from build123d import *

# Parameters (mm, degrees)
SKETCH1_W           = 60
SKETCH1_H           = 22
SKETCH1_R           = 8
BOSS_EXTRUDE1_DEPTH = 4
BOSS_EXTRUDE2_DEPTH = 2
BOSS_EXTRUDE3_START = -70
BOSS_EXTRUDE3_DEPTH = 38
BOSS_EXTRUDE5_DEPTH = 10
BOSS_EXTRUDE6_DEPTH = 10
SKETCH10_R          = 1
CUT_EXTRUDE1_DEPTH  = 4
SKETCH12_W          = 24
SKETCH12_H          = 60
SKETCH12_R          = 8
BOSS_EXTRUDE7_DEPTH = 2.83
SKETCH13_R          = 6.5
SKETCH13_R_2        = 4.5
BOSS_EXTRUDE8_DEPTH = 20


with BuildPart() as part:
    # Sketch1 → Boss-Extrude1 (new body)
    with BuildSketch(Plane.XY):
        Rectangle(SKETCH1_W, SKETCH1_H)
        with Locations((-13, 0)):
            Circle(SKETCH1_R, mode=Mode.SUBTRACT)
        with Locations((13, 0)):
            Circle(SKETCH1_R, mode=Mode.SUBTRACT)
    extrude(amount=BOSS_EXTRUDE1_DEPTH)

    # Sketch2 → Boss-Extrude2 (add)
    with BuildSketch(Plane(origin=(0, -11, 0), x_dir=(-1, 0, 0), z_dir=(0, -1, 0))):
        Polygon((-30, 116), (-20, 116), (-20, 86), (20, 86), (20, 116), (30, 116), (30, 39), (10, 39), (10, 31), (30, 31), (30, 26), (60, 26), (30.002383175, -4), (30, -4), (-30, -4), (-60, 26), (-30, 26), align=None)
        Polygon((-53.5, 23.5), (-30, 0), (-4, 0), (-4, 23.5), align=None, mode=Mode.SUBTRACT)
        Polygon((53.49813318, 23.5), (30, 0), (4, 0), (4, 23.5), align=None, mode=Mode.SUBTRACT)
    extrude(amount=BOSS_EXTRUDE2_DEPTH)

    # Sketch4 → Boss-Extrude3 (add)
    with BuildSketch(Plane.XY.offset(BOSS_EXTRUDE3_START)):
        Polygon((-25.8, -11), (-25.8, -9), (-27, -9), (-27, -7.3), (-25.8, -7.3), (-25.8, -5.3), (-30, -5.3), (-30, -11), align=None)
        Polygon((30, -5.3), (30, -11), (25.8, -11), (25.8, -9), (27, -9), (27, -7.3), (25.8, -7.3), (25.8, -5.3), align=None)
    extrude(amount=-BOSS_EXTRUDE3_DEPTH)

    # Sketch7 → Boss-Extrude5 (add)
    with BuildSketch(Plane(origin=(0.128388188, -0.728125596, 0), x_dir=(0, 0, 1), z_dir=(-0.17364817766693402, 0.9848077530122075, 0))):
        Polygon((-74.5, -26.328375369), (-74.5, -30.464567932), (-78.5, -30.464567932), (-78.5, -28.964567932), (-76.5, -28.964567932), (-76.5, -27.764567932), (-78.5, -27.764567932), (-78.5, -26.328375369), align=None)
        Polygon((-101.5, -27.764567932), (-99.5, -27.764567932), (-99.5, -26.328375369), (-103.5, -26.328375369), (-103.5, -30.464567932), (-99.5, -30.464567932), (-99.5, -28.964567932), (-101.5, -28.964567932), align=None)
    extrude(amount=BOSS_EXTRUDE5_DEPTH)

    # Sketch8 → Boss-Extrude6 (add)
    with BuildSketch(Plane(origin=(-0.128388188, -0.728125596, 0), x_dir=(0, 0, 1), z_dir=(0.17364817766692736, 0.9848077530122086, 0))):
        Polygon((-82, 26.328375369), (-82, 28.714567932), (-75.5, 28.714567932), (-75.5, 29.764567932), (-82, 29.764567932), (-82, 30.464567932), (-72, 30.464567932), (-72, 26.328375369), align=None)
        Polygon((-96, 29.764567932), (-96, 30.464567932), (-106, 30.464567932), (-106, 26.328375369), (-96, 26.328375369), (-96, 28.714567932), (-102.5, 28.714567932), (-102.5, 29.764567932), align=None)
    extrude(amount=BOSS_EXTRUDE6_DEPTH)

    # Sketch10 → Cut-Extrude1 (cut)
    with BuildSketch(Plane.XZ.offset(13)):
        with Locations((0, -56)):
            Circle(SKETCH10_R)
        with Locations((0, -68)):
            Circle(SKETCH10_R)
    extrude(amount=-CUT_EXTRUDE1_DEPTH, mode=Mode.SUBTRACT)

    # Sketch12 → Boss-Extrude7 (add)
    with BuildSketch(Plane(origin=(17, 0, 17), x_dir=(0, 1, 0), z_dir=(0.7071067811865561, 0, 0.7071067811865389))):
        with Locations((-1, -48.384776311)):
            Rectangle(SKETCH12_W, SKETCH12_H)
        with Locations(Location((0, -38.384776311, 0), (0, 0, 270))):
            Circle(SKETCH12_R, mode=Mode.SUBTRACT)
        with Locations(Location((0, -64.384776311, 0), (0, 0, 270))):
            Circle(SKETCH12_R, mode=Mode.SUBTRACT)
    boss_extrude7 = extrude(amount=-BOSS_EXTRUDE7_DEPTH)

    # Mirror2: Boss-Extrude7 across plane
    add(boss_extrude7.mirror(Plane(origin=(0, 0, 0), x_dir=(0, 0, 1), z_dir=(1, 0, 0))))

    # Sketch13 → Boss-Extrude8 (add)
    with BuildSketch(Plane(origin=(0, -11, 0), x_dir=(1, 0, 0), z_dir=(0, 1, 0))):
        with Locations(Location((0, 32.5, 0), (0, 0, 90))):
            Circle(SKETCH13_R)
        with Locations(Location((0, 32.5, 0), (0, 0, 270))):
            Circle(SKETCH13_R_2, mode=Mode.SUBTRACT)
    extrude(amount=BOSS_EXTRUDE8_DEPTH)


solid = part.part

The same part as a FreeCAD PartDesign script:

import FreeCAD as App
import Part
import Sketcher

V = App.Vector
Q = App.Units.Quantity

doc = App.newDocument("Part")
params = doc.addObject("Spreadsheet::Sheet", "Params")
for row, (alias, value) in enumerate([
    ("sketch1_diameter", "16 mm"),
    ("sketch1_width", "60 mm"),
    ("sketch1_height", "22 mm"),
    ("pad1_length", "4 mm"),
    ("sketch2_width", "10 mm"),
    ("sketch2_width2", "30 mm"),
    ("sketch2_width3", "20 mm"),
    ("sketch2_width4", "40 mm"),
    ("sketch2_width5", "26 mm"),
    ("pad2_length", "2 mm"),
    ("sketch3_height", "2 mm"),
    ("sketch3_width", "1.2 mm"),
    ("sketch3_width2", "4.2 mm"),
    ("sketch3_height2", "1.7 mm"),
    ("pad3_length", "38 mm"),
    ("sketch4_width", "4 mm"),
    ("sketch4_width2", "2 mm"),
    ("sketch4_height", "1.2 mm"),
    ("sketch4_height2", "1.5 mm"),
    ("pad4_length", "10 mm"),
    ("sketch5_width", "10 mm"),
    ("sketch5_width2", "6.5 mm"),
    ("sketch5_height", "0.7 mm"),
    ("sketch5_height2", "1.05 mm"),
    ("pad5_length", "10 mm"),
    ("sketch6_diameter", "2 mm"),
    ("pocket1_length", "4 mm"),
    ("sketch7_diameter", "16 mm"),
    ("sketch7_width", "24 mm"),
    ("sketch7_height", "60 mm"),
    ("pad6_length", "2.83 mm"),
    ("sketch8_diameter", "13 mm"),
    ("sketch8_diameter2", "9 mm"),
    ("pad7_length", "20 mm"),
], start=1):
    params.set(f"A{row}", alias)
    params.set(f"B{row}", "=" + value)
    params.setAlias(f"B{row}", alias)

body = doc.addObject("PartDesign::Body", "Body")

sketch1 = body.newObject("Sketcher::SketchObject", "Sketch")
sketch1.AttachmentSupport = (doc.getObject("XY_Plane"), [""])
sketch1.MapMode = "FlatFace"
sketch1.addGeometry([
    Part.LineSegment(V(-30, 11, 0), V(-30, -11, 0)),
    Part.LineSegment(V(-30, -11, 0), V(30, -11, 0)),
    Part.LineSegment(V(30, -11, 0), V(30, 11, 0)),
    Part.LineSegment(V(30, 11, 0), V(-30, 11, 0)),
    Part.Circle(V(-13, 0, 0), V(0, 0, 1), 8),
    Part.Circle(V(13, 0, 0), V(0, 0, 1), 8),
], False)
sketch1.addConstraint([
    Sketcher.Constraint("Coincident", 0, 2, 1, 1),
    Sketcher.Constraint("Coincident", 1, 2, 2, 1),
    Sketcher.Constraint("Coincident", 2, 2, 3, 1),
    Sketcher.Constraint("Coincident", 3, 2, 0, 1),
    Sketcher.Constraint("Vertical", 0),
    Sketcher.Constraint("Horizontal", 1),
    Sketcher.Constraint("Vertical", 2),
    Sketcher.Constraint("Horizontal", 3),
    Sketcher.Constraint("Equal", 4, 5),
    Sketcher.Constraint("Symmetric", 4, 3, 5, 3, -1, 1),
    Sketcher.Constraint("Symmetric", 0, 2, 2, 2, -1, 1),
    Sketcher.Constraint("PointOnObject", 4, 3, -1),
    Sketcher.Constraint("Diameter", 4, 16.0),
    Sketcher.Constraint("DistanceX", 1, 1, 1, 2, 60.0),
    Sketcher.Constraint("DistanceY", 0, 2, 0, 1, 22.0),
    Sketcher.Constraint("DistanceX", 4, 3, -1, 1, 13.0),
])
sketch1.setExpression("Constraints[12]", "Params.sketch1_diameter")
sketch1.setExpression("Constraints[13]", "Params.sketch1_width")
sketch1.setExpression("Constraints[14]", "Params.sketch1_height")
pad1 = body.newObject("PartDesign::Pad", "Pad")
pad1.Profile = sketch1
pad1.setExpression("Length", "Params.pad1_length")

sketch2 = body.newObject("Sketcher::SketchObject", "Sketch001")
sketch2.AttachmentSupport = (doc.getObject("XZ_Plane"), [""])
sketch2.MapMode = "FlatFace"
sketch2.AttachmentOffset = App.Placement(V(0, 0, 11), App.Rotation())
sketch2.addGeometry([
    Part.LineSegment(V(20, -116, 0), V(30, -116, 0)),
    Part.LineSegment(V(30, -116, 0), V(30, -26, 0)),
    Part.LineSegment(V(30, -26, 0), V(60, -26, 0)),
    Part.LineSegment(V(60, -26, 0), V(30, 4, 0)),
    Part.LineSegment(V(30, 4, 0), V(-30.002383, 4, 0)),
    Part.LineSegment(V(-30.002383, 4, 0), V(-60, -26, 0)),
    Part.LineSegment(V(-60, -26, 0), V(-30, -26, 0)),
    Part.LineSegment(V(-30, -26, 0), V(-30, -31, 0)),
    Part.LineSegment(V(-30, -31, 0), V(-10, -31, 0)),
    Part.LineSegment(V(-10, -31, 0), V(-10, -39, 0)),
    Part.LineSegment(V(-10, -39, 0), V(-30, -39, 0)),
    Part.LineSegment(V(-30, -39, 0), V(-30, -116, 0)),
    Part.LineSegment(V(-30, -116, 0), V(-20, -116, 0)),
    Part.LineSegment(V(-20, -116, 0), V(-20, -86, 0)),
    Part.LineSegment(V(-20, -86, 0), V(20, -86, 0)),
    Part.LineSegment(V(20, -86, 0), V(20, -116, 0)),
    Part.LineSegment(V(-53.498133, -23.5, 0), V(-30, 0, 0)),
    Part.LineSegment(V(-30, 0, 0), V(-4, 0, 0)),
    Part.LineSegment(V(-4, 0, 0), V(-4, -23.5, 0)),
    Part.LineSegment(V(-4, -23.5, 0), V(-53.498133, -23.5, 0)),
    Part.LineSegment(V(53.5, -23.5, 0), V(4, -23.5, 0)),
    Part.LineSegment(V(4, -23.5, 0), V(4, 0, 0)),
    Part.LineSegment(V(4, 0, 0), V(30, 0, 0)),
    Part.LineSegment(V(30, 0, 0), V(53.5, -23.5, 0)),
], False)
sketch2.addConstraint([
    Sketcher.Constraint("Coincident", 0, 2, 1, 1),
    Sketcher.Constraint("Coincident", 1, 2, 2, 1),
    Sketcher.Constraint("Coincident", 2, 2, 3, 1),
    Sketcher.Constraint("Coincident", 3, 2, 4, 1),
    Sketcher.Constraint("Coincident", 4, 2, 5, 1),
    Sketcher.Constraint("Coincident", 5, 2, 6, 1),
    Sketcher.Constraint("Coincident", 6, 2, 7, 1),
    Sketcher.Constraint("Coincident", 7, 2, 8, 1),
    Sketcher.Constraint("Coincident", 8, 2, 9, 1),
    Sketcher.Constraint("Coincident", 9, 2, 10, 1),
    Sketcher.Constraint("Coincident", 10, 2, 11, 1),
    Sketcher.Constraint("Coincident", 11, 2, 12, 1),
    Sketcher.Constraint("Coincident", 12, 2, 13, 1),
    Sketcher.Constraint("Coincident", 13, 2, 14, 1),
    Sketcher.Constraint("Coincident", 14, 2, 15, 1),
    Sketcher.Constraint("Coincident", 15, 2, 0, 1),
    Sketcher.Constraint("Coincident", 16, 2, 17, 1),
    Sketcher.Constraint("Coincident", 17, 2, 18, 1),
    Sketcher.Constraint("Coincident", 18, 2, 19, 1),
    Sketcher.Constraint("Coincident", 19, 2, 16, 1),
    Sketcher.Constraint("Coincident", 20, 2, 21, 1),
    Sketcher.Constraint("Coincident", 21, 2, 22, 1),
    Sketcher.Constraint("Coincident", 22, 2, 23, 1),
    Sketcher.Constraint("Coincident", 23, 2, 20, 1),
    Sketcher.Constraint("Horizontal", 0),
    Sketcher.Constraint("Vertical", 1),
    Sketcher.Constraint("Horizontal", 2),
    Sketcher.Constraint("Horizontal", 4),
    Sketcher.Constraint("Horizontal", 6),
    Sketcher.Constraint("Vertical", 7),
    Sketcher.Constraint("Horizontal", 8),
    Sketcher.Constraint("Vertical", 9),
    Sketcher.Constraint("Horizontal", 10),
    Sketcher.Constraint("Vertical", 11),
    Sketcher.Constraint("Horizontal", 12),
    Sketcher.Constraint("Vertical", 13),
    Sketcher.Constraint("Horizontal", 14),
    Sketcher.Constraint("Vertical", 15),
    Sketcher.Constraint("Horizontal", 17),
    Sketcher.Constraint("Vertical", 18),
    Sketcher.Constraint("Horizontal", 19),
    Sketcher.Constraint("Horizontal", 20),
    Sketcher.Constraint("Vertical", 21),
    Sketcher.Constraint("Horizontal", 22),
    Sketcher.Constraint("Symmetric", 17, 2, 21, 2, -1, 1),
    Sketcher.Constraint("Symmetric", 2, 2, 5, 2, -2),
    Sketcher.Constraint("Symmetric", 0, 2, 11, 2, -2),
    Sketcher.Constraint("Symmetric", 16, 2, 22, 2, -2),
    Sketcher.Constraint("Parallel", 5, 16),
    Sketcher.Constraint("Parallel", 3, 23),
    Sketcher.Constraint("Horizontal", 19, 2, 20, 2),
    Sketcher.Constraint("Vertical", 1, 2, 3, 2),
    Sketcher.Constraint("Vertical", 7, 2, 10, 2),
    Sketcher.Constraint("Vertical", 11, 2, 16, 2),
    Sketcher.Constraint("Equal", 0, 12),
    Sketcher.Constraint("Equal", 6, 13),
    Sketcher.Constraint("DistanceX", 0, 1, 0, 2, 10.0),
    Sketcher.Constraint("DistanceX", 2, 1, 2, 2, 30.0),
    Sketcher.Constraint("DistanceX", 8, 1, 8, 2, 20.0),
    Sketcher.Constraint("DistanceX", 14, 1, 14, 2, 40.0),
    Sketcher.Constraint("DistanceX", 17, 1, 17, 2, 26.0),
    Sketcher.Constraint("DistanceY", 1, 1, 1, 2, 90.0),
    Sketcher.Constraint("DistanceY", 7, 2, 7, 1, 5.0),
    Sketcher.Constraint("DistanceY", 9, 2, 9, 1, 8.0),
    Sketcher.Constraint("Angle", 3, Q("135 deg")),
    Sketcher.Constraint("DistanceX", 20, 2, 20, 1, 49.5),
    Sketcher.Constraint("DistanceY", 0, 2, -1, 1, 116.0),
    Sketcher.Constraint("Distance", 16, 33.232699),
])
sketch2.setExpression("Constraints[56]", "Params.sketch2_width")
sketch2.setExpression("Constraints[57]", "Params.sketch2_width2")
sketch2.setExpression("Constraints[58]", "Params.sketch2_width3")
sketch2.setExpression("Constraints[59]", "Params.sketch2_width4")
sketch2.setExpression("Constraints[60]", "Params.sketch2_width5")
pad2 = body.newObject("PartDesign::Pad", "Pad001")
pad2.Profile = sketch2
pad2.setExpression("Length", "Params.pad2_length")

sketch3 = body.newObject("Sketcher::SketchObject", "Sketch002")
sketch3.AttachmentSupport = (doc.getObject("XY_Plane"), [""])
sketch3.MapMode = "FlatFace"
sketch3.AttachmentOffset = App.Placement(V(0, 0, -70), App.Rotation())
sketch3.addGeometry([
    Part.LineSegment(V(-25.8, -11, 0), V(-25.8, -9, 0)),
    Part.LineSegment(V(-25.8, -9, 0), V(-27, -9, 0)),
    Part.LineSegment(V(-27, -9, 0), V(-27, -7.3, 0)),
    Part.LineSegment(V(-27, -7.3, 0), V(-25.8, -7.3, 0)),
    Part.LineSegment(V(-25.8, -7.3, 0), V(-25.8, -5.3, 0)),
    Part.LineSegment(V(-25.8, -5.3, 0), V(-30, -5.3, 0)),
    Part.LineSegment(V(-30, -5.3, 0), V(-30, -11, 0)),
    Part.LineSegment(V(-30, -11, 0), V(-25.8, -11, 0)),
    Part.LineSegment(V(30, -11, 0), V(30, -5.3, 0)),
    Part.LineSegment(V(30, -5.3, 0), V(25.8, -5.3, 0)),
    Part.LineSegment(V(25.8, -5.3, 0), V(25.8, -7.3, 0)),
    Part.LineSegment(V(25.8, -7.3, 0), V(27, -7.3, 0)),
    Part.LineSegment(V(27, -7.3, 0), V(27, -9, 0)),
    Part.LineSegment(V(27, -9, 0), V(25.8, -9, 0)),
    Part.LineSegment(V(25.8, -9, 0), V(25.8, -11, 0)),
    Part.LineSegment(V(25.8, -11, 0), V(30, -11, 0)),
], False)
sketch3.addConstraint([
    Sketcher.Constraint("Coincident", 0, 2, 1, 1),
    Sketcher.Constraint("Coincident", 1, 2, 2, 1),
    Sketcher.Constraint("Coincident", 2, 2, 3, 1),
    Sketcher.Constraint("Coincident", 3, 2, 4, 1),
    Sketcher.Constraint("Coincident", 4, 2, 5, 1),
    Sketcher.Constraint("Coincident", 5, 2, 6, 1),
    Sketcher.Constraint("Coincident", 6, 2, 7, 1),
    Sketcher.Constraint("Coincident", 7, 2, 0, 1),
    Sketcher.Constraint("Coincident", 8, 2, 9, 1),
    Sketcher.Constraint("Coincident", 9, 2, 10, 1),
    Sketcher.Constraint("Coincident", 10, 2, 11, 1),
    Sketcher.Constraint("Coincident", 11, 2, 12, 1),
    Sketcher.Constraint("Coincident", 12, 2, 13, 1),
    Sketcher.Constraint("Coincident", 13, 2, 14, 1),
    Sketcher.Constraint("Coincident", 14, 2, 15, 1),
    Sketcher.Constraint("Coincident", 15, 2, 8, 1),
    Sketcher.Constraint("Vertical", 0),
    Sketcher.Constraint("Horizontal", 1),
    Sketcher.Constraint("Vertical", 2),
    Sketcher.Constraint("Horizontal", 3),
    Sketcher.Constraint("Vertical", 4),
    Sketcher.Constraint("Horizontal", 5),
    Sketcher.Constraint("Vertical", 6),
    Sketcher.Constraint("Horizontal", 7),
    Sketcher.Constraint("Vertical", 8),
    Sketcher.Constraint("Horizontal", 9),
    Sketcher.Constraint("Vertical", 10),
    Sketcher.Constraint("Horizontal", 11),
    Sketcher.Constraint("Vertical", 12),
    Sketcher.Constraint("Horizontal", 13),
    Sketcher.Constraint("Vertical", 14),
    Sketcher.Constraint("Horizontal", 15),
    Sketcher.Constraint("Symmetric", 5, 2, 8, 2, -2),
    Sketcher.Constraint("Symmetric", 3, 2, 10, 2, -2),
    Sketcher.Constraint("Symmetric", 1, 2, 12, 2, -2),
    Sketcher.Constraint("Symmetric", 7, 2, 14, 2, -2),
    Sketcher.Constraint("Vertical", 0, 2, 3, 2),
    Sketcher.Constraint("Equal", 0, 4),
    Sketcher.Constraint("DistanceY", 0, 1, 0, 2, 2.0),
    Sketcher.Constraint("DistanceX", 1, 2, 1, 1, 1.2),
    Sketcher.Constraint("DistanceX", 5, 2, 5, 1, 4.2),
    Sketcher.Constraint("DistanceY", 2, 1, 2, 2, 1.7),
    Sketcher.Constraint("DistanceY", 0, 2, -1, 1, 9.0),
    Sketcher.Constraint("DistanceX", 1, 2, -1, 1, 27.0),
])
sketch3.setExpression("Constraints[38]", "Params.sketch3_height")
sketch3.setExpression("Constraints[39]", "Params.sketch3_width")
sketch3.setExpression("Constraints[40]", "Params.sketch3_width2")
sketch3.setExpression("Constraints[41]", "Params.sketch3_height2")
pad3 = body.newObject("PartDesign::Pad", "Pad002")
pad3.Profile = sketch3
pad3.setExpression("Length", "Params.pad3_length")
pad3.Reversed = True

sketch4 = body.newObject("Sketcher::SketchObject", "Sketch003")
sketch4.Placement = App.Placement(V(0.128388, -0.728126, 0), App.Rotation(V(0, 0, 1), V(0.984807753, 0.173648178, 0), V(-0.173648178, 0.984807753, 0), "ZXY"))
sketch4.addGeometry([
    Part.LineSegment(V(-74.5, -30.464568, 0), V(-74.5, -26.328375, 0)),
    Part.LineSegment(V(-74.5, -26.328375, 0), V(-78.5, -26.328375, 0)),
    Part.LineSegment(V(-78.5, -26.328375, 0), V(-78.5, -27.764568, 0)),
    Part.LineSegment(V(-78.5, -27.764568, 0), V(-76.5, -27.764568, 0)),
    Part.LineSegment(V(-76.5, -27.764568, 0), V(-76.5, -28.964568, 0)),
    Part.LineSegment(V(-76.5, -28.964568, 0), V(-78.5, -28.964568, 0)),
    Part.LineSegment(V(-78.5, -28.964568, 0), V(-78.5, -30.464568, 0)),
    Part.LineSegment(V(-78.5, -30.464568, 0), V(-74.5, -30.464568, 0)),
    Part.LineSegment(V(-101.5, -27.764568, 0), V(-99.5, -27.764568, 0)),
    Part.LineSegment(V(-99.5, -27.764568, 0), V(-99.5, -26.328375, 0)),
    Part.LineSegment(V(-99.5, -26.328375, 0), V(-103.5, -26.328375, 0)),
    Part.LineSegment(V(-103.5, -26.328375, 0), V(-103.5, -30.464568, 0)),
    Part.LineSegment(V(-103.5, -30.464568, 0), V(-99.5, -30.464568, 0)),
    Part.LineSegment(V(-99.5, -30.464568, 0), V(-99.5, -28.964568, 0)),
    Part.LineSegment(V(-99.5, -28.964568, 0), V(-101.5, -28.964568, 0)),
    Part.LineSegment(V(-101.5, -28.964568, 0), V(-101.5, -27.764568, 0)),
], False)
sketch4.addConstraint([
    Sketcher.Constraint("Coincident", 0, 2, 1, 1),
    Sketcher.Constraint("Coincident", 1, 2, 2, 1),
    Sketcher.Constraint("Coincident", 2, 2, 3, 1),
    Sketcher.Constraint("Coincident", 3, 2, 4, 1),
    Sketcher.Constraint("Coincident", 4, 2, 5, 1),
    Sketcher.Constraint("Coincident", 5, 2, 6, 1),
    Sketcher.Constraint("Coincident", 6, 2, 7, 1),
    Sketcher.Constraint("Coincident", 7, 2, 0, 1),
    Sketcher.Constraint("Coincident", 8, 2, 9, 1),
    Sketcher.Constraint("Coincident", 9, 2, 10, 1),
    Sketcher.Constraint("Coincident", 10, 2, 11, 1),
    Sketcher.Constraint("Coincident", 11, 2, 12, 1),
    Sketcher.Constraint("Coincident", 12, 2, 13, 1),
    Sketcher.Constraint("Coincident", 13, 2, 14, 1),
    Sketcher.Constraint("Coincident", 14, 2, 15, 1),
    Sketcher.Constraint("Coincident", 15, 2, 8, 1),
    Sketcher.Constraint("Vertical", 0),
    Sketcher.Constraint("Horizontal", 1),
    Sketcher.Constraint("Vertical", 2),
    Sketcher.Constraint("Horizontal", 3),
    Sketcher.Constraint("Vertical", 4),
    Sketcher.Constraint("Horizontal", 5),
    Sketcher.Constraint("Vertical", 6),
    Sketcher.Constraint("Horizontal", 7),
    Sketcher.Constraint("Horizontal", 8),
    Sketcher.Constraint("Vertical", 9),
    Sketcher.Constraint("Horizontal", 10),
    Sketcher.Constraint("Vertical", 11),
    Sketcher.Constraint("Horizontal", 12),
    Sketcher.Constraint("Vertical", 13),
    Sketcher.Constraint("Horizontal", 14),
    Sketcher.Constraint("Vertical", 15),
    Sketcher.Constraint("Horizontal", 3, 2, 8, 2),
    Sketcher.Constraint("Horizontal", 1, 2, 9, 2),
    Sketcher.Constraint("Horizontal", 7, 2, 11, 2),
    Sketcher.Constraint("Horizontal", 5, 2, 13, 2),
    Sketcher.Constraint("Vertical", 2, 2, 5, 2),
    Sketcher.Constraint("Vertical", 9, 2, 12, 2),
    Sketcher.Constraint("Equal", 5, 8),
    Sketcher.Constraint("Equal", 7, 10),
    Sketcher.Constraint("DistanceX", 1, 2, 1, 1, 4.0),
    Sketcher.Constraint("DistanceX", 3, 1, 3, 2, 2.0),
    Sketcher.Constraint("DistanceY", 4, 2, 4, 1, 1.2),
    Sketcher.Constraint("DistanceY", 6, 2, 6, 1, 1.5),
    Sketcher.Constraint("DistanceX", 8, 2, 2, 2, 21.0),
    Sketcher.Constraint("DistanceX", 0, 2, -1, 1, 74.5),
    Sketcher.Constraint("DistanceY", 0, 1, 0, 2, 4.136193),
    Sketcher.Constraint("DistanceY", 0, 2, -1, 1, 26.328375),
])
sketch4.setExpression("Constraints[40]", "Params.sketch4_width")
sketch4.setExpression("Constraints[41]", "Params.sketch4_width2")
sketch4.setExpression("Constraints[42]", "Params.sketch4_height")
sketch4.setExpression("Constraints[43]", "Params.sketch4_height2")
pad4 = body.newObject("PartDesign::Pad", "Pad003")
pad4.Profile = sketch4
pad4.setExpression("Length", "Params.pad4_length")

sketch5 = body.newObject("Sketcher::SketchObject", "Sketch004")
sketch5.Placement = App.Placement(V(-0.128388, -0.728126, 0), App.Rotation(V(0, 0, 1), V(0.984807753, -0.173648178, 0), V(0.173648178, 0.984807753, 0), "ZXY"))
sketch5.addGeometry([
    Part.LineSegment(V(-82, 28.714568, 0), V(-82, 26.328375, 0)),
    Part.LineSegment(V(-82, 26.328375, 0), V(-72, 26.328375, 0)),
    Part.LineSegment(V(-72, 26.328375, 0), V(-72, 30.464568, 0)),
    Part.LineSegment(V(-72, 30.464568, 0), V(-82, 30.464568, 0)),
    Part.LineSegment(V(-82, 30.464568, 0), V(-82, 29.764568, 0)),
    Part.LineSegment(V(-82, 29.764568, 0), V(-75.5, 29.764568, 0)),
    Part.LineSegment(V(-75.5, 29.764568, 0), V(-75.5, 28.714568, 0)),
    Part.LineSegment(V(-75.5, 28.714568, 0), V(-82, 28.714568, 0)),
    Part.LineSegment(V(-96, 29.764568, 0), V(-96, 30.464568, 0)),
    Part.LineSegment(V(-96, 30.464568, 0), V(-106, 30.464568, 0)),
    Part.LineSegment(V(-106, 30.464568, 0), V(-106, 26.328375, 0)),
    Part.LineSegment(V(-106, 26.328375, 0), V(-96, 26.328375, 0)),
    Part.LineSegment(V(-96, 26.328375, 0), V(-96, 28.714568, 0)),
    Part.LineSegment(V(-96, 28.714568, 0), V(-102.5, 28.714568, 0)),
    Part.LineSegment(V(-102.5, 28.714568, 0), V(-102.5, 29.764568, 0)),
    Part.LineSegment(V(-102.5, 29.764568, 0), V(-96, 29.764568, 0)),
], False)
sketch5.addConstraint([
    Sketcher.Constraint("Coincident", 0, 2, 1, 1),
    Sketcher.Constraint("Coincident", 1, 2, 2, 1),
    Sketcher.Constraint("Coincident", 2, 2, 3, 1),
    Sketcher.Constraint("Coincident", 3, 2, 4, 1),
    Sketcher.Constraint("Coincident", 4, 2, 5, 1),
    Sketcher.Constraint("Coincident", 5, 2, 6, 1),
    Sketcher.Constraint("Coincident", 6, 2, 7, 1),
    Sketcher.Constraint("Coincident", 7, 2, 0, 1),
    Sketcher.Constraint("Coincident", 8, 2, 9, 1),
    Sketcher.Constraint("Coincident", 9, 2, 10, 1),
    Sketcher.Constraint("Coincident", 10, 2, 11, 1),
    Sketcher.Constraint("Coincident", 11, 2, 12, 1),
    Sketcher.Constraint("Coincident", 12, 2, 13, 1),
    Sketcher.Constraint("Coincident", 13, 2, 14, 1),
    Sketcher.Constraint("Coincident", 14, 2, 15, 1),
    Sketcher.Constraint("Coincident", 15, 2, 8, 1),
    Sketcher.Constraint("Vertical", 0),
    Sketcher.Constraint("Horizontal", 1),
    Sketcher.Constraint("Vertical", 2),
    Sketcher.Constraint("Horizontal", 3),
    Sketcher.Constraint("Vertical", 4),
    Sketcher.Constraint("Horizontal", 5),
    Sketcher.Constraint("Vertical", 6),
    Sketcher.Constraint("Horizontal", 7),
    Sketcher.Constraint("Vertical", 8),
    Sketcher.Constraint("Horizontal", 9),
    Sketcher.Constraint("Vertical", 10),
    Sketcher.Constraint("Horizontal", 11),
    Sketcher.Constraint("Vertical", 12),
    Sketcher.Constraint("Horizontal", 13),
    Sketcher.Constraint("Vertical", 14),
    Sketcher.Constraint("Horizontal", 15),
    Sketcher.Constraint("Horizontal", 3, 2, 8, 2),
    Sketcher.Constraint("Horizontal", 1, 2, 10, 2),
    Sketcher.Constraint("Horizontal", 7, 2, 12, 2),
    Sketcher.Constraint("Horizontal", 5, 2, 14, 2),
    Sketcher.Constraint("Vertical", 0, 2, 3, 2),
    Sketcher.Constraint("Vertical", 8, 2, 11, 2),
    Sketcher.Constraint("Equal", 3, 9),
    Sketcher.Constraint("Equal", 7, 13),
    Sketcher.Constraint("DistanceX", 1, 1, 1, 2, 10.0),
    Sketcher.Constraint("DistanceX", 5, 1, 5, 2, 6.5),
    Sketcher.Constraint("DistanceY", 4, 2, 4, 1, 0.7),
    Sketcher.Constraint("DistanceX", 0, 2, -1, 1, 82.0),
    Sketcher.Constraint("DistanceX", 8, 2, -1, 1, 96.0),
    Sketcher.Constraint("DistanceY", 6, 2, 6, 1, 1.05),
    Sketcher.Constraint("DistanceY", 0, 2, 0, 1, 2.386193),
    Sketcher.Constraint("DistanceY", -1, 1, 0, 2, 26.328375),
])
sketch5.setExpression("Constraints[40]", "Params.sketch5_width")
sketch5.setExpression("Constraints[41]", "Params.sketch5_width2")
sketch5.setExpression("Constraints[42]", "Params.sketch5_height")
sketch5.setExpression("Constraints[45]", "Params.sketch5_height2")
pad5 = body.newObject("PartDesign::Pad", "Pad004")
pad5.Profile = sketch5
pad5.setExpression("Length", "Params.pad5_length")

sketch6 = body.newObject("Sketcher::SketchObject", "Sketch005")
sketch6.AttachmentSupport = (doc.getObject("XZ_Plane"), [""])
sketch6.MapMode = "FlatFace"
sketch6.AttachmentOffset = App.Placement(V(0, 0, 13), App.Rotation())
sketch6.addGeometry([
    Part.Circle(V(0, -56, 0), V(0, 0, 1), 1),
    Part.Circle(V(0, -68, 0), V(0, 0, 1), 1),
], False)
sketch6.addConstraint([
    Sketcher.Constraint("Equal", 0, 1),
    Sketcher.Constraint("PointOnObject", 0, 3, -2),
    Sketcher.Constraint("PointOnObject", 1, 3, -2),
    Sketcher.Constraint("Diameter", 0, 2.0),
    Sketcher.Constraint("DistanceY", 0, 3, -1, 1, 56.0),
    Sketcher.Constraint("DistanceY", 1, 3, -1, 1, 68.0),
])
sketch6.setExpression("Constraints[3]", "Params.sketch6_diameter")
pocket1 = body.newObject("PartDesign::Pocket", "Pocket")
pocket1.Profile = sketch6
pocket1.setExpression("Length", "Params.pocket1_length")

sketch7 = body.newObject("Sketcher::SketchObject", "Sketch006")
sketch7.Placement = App.Placement(V(17, 0, 17), App.Rotation(V(0, 1, 0), V(-0.707106781, 0, 0.707106781), V(0.707106781, 0, 0.707106781), "ZXY"))
sketch7.addGeometry([
    Part.LineSegment(V(-13, -18.384776, 0), V(-13, -78.384776, 0)),
    Part.LineSegment(V(-13, -78.384776, 0), V(11, -78.384776, 0)),
    Part.LineSegment(V(11, -78.384776, 0), V(11, -18.384776, 0)),
    Part.LineSegment(V(11, -18.384776, 0), V(-13, -18.384776, 0)),
    Part.Circle(V(0, -64.384776, 0), V(0, 0, 1), 8),
    Part.Circle(V(0, -38.384776, 0), V(0, 0, 1), 8),
], False)
sketch7.addConstraint([
    Sketcher.Constraint("Coincident", 0, 2, 1, 1),
    Sketcher.Constraint("Coincident", 1, 2, 2, 1),
    Sketcher.Constraint("Coincident", 2, 2, 3, 1),
    Sketcher.Constraint("Coincident", 3, 2, 0, 1),
    Sketcher.Constraint("Vertical", 0),
    Sketcher.Constraint("Horizontal", 1),
    Sketcher.Constraint("Vertical", 2),
    Sketcher.Constraint("Horizontal", 3),
    Sketcher.Constraint("Equal", 4, 5),
    Sketcher.Constraint("PointOnObject", 4, 3, -2),
    Sketcher.Constraint("PointOnObject", 5, 3, -2),
    Sketcher.Constraint("Diameter", 4, 16.0),
    Sketcher.Constraint("DistanceX", 1, 1, 1, 2, 24.0),
    Sketcher.Constraint("DistanceY", 0, 2, 0, 1, 60.0),
    Sketcher.Constraint("DistanceX", 0, 2, -1, 1, 13.0),
    Sketcher.Constraint("DistanceY", 4, 3, 5, 3, 26.0),
    Sketcher.Constraint("DistanceY", 0, 2, 4, 3, 14.0),
    Sketcher.Constraint("DistanceY", 4, 3, -1, 1, 64.384776),
])
sketch7.setExpression("Constraints[11]", "Params.sketch7_diameter")
sketch7.setExpression("Constraints[12]", "Params.sketch7_width")
sketch7.setExpression("Constraints[13]", "Params.sketch7_height")
pad6 = body.newObject("PartDesign::Pad", "Pad005")
pad6.Profile = sketch7
pad6.setExpression("Length", "Params.pad6_length")
pad6.Reversed = True
doc.recompute()

mirrored = body.newObject("PartDesign::Mirrored", "Mirrored")
mirrored.Originals = [pad6]
mirrored.MirrorPlane = (doc.getObject("YZ_Plane"), [""])
body.Tip = mirrored

sketch8 = body.newObject("Sketcher::SketchObject", "Sketch007")
sketch8.AttachmentSupport = (doc.getObject("XZ_Plane"), [""])
sketch8.MapMode = "FlatFace"
sketch8.AttachmentOffset = App.Placement(V(0, 0, 11), App.Rotation())
sketch8.addGeometry([
    Part.Circle(V(0, -32.5, 0), V(0, 0, 1), 6.5),
    Part.Circle(V(0, -32.5, 0), V(0, 0, 1), 4.5),
], False)
sketch8.addConstraint([
    Sketcher.Constraint("Coincident", 1, 3, 0, 3),
    Sketcher.Constraint("PointOnObject", 0, 3, -2),
    Sketcher.Constraint("Diameter", 0, 13.0),
    Sketcher.Constraint("Diameter", 1, 9.0),
    Sketcher.Constraint("DistanceY", 0, 3, -1, 1, 32.5),
])
sketch8.setExpression("Constraints[2]", "Params.sketch8_diameter")
sketch8.setExpression("Constraints[3]", "Params.sketch8_diameter2")
pad7 = body.newObject("PartDesign::Pad", "Pad006")
pad7.Profile = sketch8
pad7.setExpression("Length", "Params.pad7_length")
pad7.Reversed = True

doc.recompute()
